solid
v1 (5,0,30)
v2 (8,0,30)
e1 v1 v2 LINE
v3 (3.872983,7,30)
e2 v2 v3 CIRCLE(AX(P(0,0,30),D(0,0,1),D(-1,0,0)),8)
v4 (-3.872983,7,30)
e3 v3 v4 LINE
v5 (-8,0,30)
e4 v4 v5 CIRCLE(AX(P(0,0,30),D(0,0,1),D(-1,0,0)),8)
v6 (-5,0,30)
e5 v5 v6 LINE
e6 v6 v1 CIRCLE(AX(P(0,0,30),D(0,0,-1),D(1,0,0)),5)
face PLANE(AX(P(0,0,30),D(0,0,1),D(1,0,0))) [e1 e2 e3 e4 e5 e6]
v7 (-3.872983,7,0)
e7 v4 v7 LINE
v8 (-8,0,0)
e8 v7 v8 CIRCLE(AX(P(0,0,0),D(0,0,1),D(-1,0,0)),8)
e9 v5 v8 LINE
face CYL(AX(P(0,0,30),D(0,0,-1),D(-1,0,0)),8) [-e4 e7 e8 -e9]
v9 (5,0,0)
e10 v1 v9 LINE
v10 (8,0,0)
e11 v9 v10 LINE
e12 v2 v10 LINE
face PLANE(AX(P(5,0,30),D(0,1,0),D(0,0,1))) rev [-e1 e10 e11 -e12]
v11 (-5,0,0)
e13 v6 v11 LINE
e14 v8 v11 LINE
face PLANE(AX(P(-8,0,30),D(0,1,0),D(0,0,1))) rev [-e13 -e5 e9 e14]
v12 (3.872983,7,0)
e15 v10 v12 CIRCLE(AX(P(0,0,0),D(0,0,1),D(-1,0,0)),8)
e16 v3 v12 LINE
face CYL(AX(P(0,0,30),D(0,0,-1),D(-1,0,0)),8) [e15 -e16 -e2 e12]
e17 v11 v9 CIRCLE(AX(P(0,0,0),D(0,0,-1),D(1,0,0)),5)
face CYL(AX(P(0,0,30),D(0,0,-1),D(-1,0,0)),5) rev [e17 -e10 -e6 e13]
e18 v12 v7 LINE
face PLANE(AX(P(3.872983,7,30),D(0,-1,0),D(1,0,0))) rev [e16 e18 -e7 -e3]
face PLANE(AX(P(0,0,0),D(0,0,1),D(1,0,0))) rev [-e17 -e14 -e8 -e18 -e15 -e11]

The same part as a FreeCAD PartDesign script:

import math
import FreeCAD as App
import Part
import Sketcher
from FreeCAD import Vector

doc = App.newDocument("Part")
body = doc.addObject("PartDesign::Body", "Body")

# Sketch on XY plane
sketch1 = doc.addObject("Sketcher::SketchObject", "Sketch")
body.addObject(sketch1)
sketch1.AttachmentSupport = (doc.XY_Plane, [""])
sketch1.MapMode = "FlatFace"
sketch1.addGeometry(Part.LineSegment(Vector(-8, 0, 0), Vector(-5, 0, 0)), False)
sketch1.addGeometry(Part.ArcOfCircle(Part.Circle(Vector(0, 0, 0), Vector(0, 0, 1), 5), math.radians(0), math.radians(180)), False)
sketch1.addGeometry(Part.LineSegment(Vector(5, 0, 0), Vector(8, 0, 0)), False)
sketch1.addGeometry(Part.ArcOfCircle(Part.Circle(Vector(0, 0, 0), Vector(0, 0, 1), 8), math.radians(0), math.radians(61)), False)
sketch1.addGeometry(Part.LineSegment(Vector(3.9, 7, 0), Vector(-3.9, 7, 0)), False)
sketch1.addGeometry(Part.ArcOfCircle(Part.Circle(Vector(0, 0, 0), Vector(0, 0, 1), 8), math.radians(119), math.radians(180)), False)
sketch1.addConstraint(Sketcher.Constraint("Coincident", 0, 2, 1, 2))
sketch1.addConstraint(Sketcher.Constraint("Coincident", 1, 1, 2, 1))
sketch1.addConstraint(Sketcher.Constraint("Coincident", 2, 2, 3, 1))
sketch1.addConstraint(Sketcher.Constraint("Coincident", 3, 2, 4, 1))
sketch1.addConstraint(Sketcher.Constraint("Coincident", 4, 2, 5, 1))
sketch1.addConstraint(Sketcher.Constraint("Coincident", 5, 2, 0, 1))
sketch1.addConstraint(Sketcher.Constraint("Horizontal", 0))
sketch1.addConstraint(Sketcher.Constraint("Horizontal", 2))
sketch1.addConstraint(Sketcher.Constraint("Horizontal", 4))
sketch1.addConstraint(Sketcher.Constraint("Coincident", 1, 3, -1, 1))
sketch1.addConstraint(Sketcher.Constraint("Coincident", 3, 3, -1, 1))
sketch1.addConstraint(Sketcher.Constraint("Coincident", 5, 3, -1, 1))
sketch1.addConstraint(Sketcher.Constraint("Equal", 3, 5))
sketch1.addConstraint(Sketcher.Constraint("PointOnObject", 0, 2, -1))
sketch1.addConstraint(Sketcher.Constraint("PointOnObject", 1, 1, -1))
sketch1.addConstraint(Sketcher.Constraint("Radius", 1, 5.0))
sketch1.addConstraint(Sketcher.Constraint("Radius", 3, 8.0))
sketch1.addConstraint(Sketcher.Constraint("DistanceY", -1, 1, 3, 2, 7.0))
pad1 = doc.addObject("PartDesign::Pad", "Pad")
body.addObject(pad1)
pad1.Profile = sketch1
pad1.Length = 30

doc.recompute()
